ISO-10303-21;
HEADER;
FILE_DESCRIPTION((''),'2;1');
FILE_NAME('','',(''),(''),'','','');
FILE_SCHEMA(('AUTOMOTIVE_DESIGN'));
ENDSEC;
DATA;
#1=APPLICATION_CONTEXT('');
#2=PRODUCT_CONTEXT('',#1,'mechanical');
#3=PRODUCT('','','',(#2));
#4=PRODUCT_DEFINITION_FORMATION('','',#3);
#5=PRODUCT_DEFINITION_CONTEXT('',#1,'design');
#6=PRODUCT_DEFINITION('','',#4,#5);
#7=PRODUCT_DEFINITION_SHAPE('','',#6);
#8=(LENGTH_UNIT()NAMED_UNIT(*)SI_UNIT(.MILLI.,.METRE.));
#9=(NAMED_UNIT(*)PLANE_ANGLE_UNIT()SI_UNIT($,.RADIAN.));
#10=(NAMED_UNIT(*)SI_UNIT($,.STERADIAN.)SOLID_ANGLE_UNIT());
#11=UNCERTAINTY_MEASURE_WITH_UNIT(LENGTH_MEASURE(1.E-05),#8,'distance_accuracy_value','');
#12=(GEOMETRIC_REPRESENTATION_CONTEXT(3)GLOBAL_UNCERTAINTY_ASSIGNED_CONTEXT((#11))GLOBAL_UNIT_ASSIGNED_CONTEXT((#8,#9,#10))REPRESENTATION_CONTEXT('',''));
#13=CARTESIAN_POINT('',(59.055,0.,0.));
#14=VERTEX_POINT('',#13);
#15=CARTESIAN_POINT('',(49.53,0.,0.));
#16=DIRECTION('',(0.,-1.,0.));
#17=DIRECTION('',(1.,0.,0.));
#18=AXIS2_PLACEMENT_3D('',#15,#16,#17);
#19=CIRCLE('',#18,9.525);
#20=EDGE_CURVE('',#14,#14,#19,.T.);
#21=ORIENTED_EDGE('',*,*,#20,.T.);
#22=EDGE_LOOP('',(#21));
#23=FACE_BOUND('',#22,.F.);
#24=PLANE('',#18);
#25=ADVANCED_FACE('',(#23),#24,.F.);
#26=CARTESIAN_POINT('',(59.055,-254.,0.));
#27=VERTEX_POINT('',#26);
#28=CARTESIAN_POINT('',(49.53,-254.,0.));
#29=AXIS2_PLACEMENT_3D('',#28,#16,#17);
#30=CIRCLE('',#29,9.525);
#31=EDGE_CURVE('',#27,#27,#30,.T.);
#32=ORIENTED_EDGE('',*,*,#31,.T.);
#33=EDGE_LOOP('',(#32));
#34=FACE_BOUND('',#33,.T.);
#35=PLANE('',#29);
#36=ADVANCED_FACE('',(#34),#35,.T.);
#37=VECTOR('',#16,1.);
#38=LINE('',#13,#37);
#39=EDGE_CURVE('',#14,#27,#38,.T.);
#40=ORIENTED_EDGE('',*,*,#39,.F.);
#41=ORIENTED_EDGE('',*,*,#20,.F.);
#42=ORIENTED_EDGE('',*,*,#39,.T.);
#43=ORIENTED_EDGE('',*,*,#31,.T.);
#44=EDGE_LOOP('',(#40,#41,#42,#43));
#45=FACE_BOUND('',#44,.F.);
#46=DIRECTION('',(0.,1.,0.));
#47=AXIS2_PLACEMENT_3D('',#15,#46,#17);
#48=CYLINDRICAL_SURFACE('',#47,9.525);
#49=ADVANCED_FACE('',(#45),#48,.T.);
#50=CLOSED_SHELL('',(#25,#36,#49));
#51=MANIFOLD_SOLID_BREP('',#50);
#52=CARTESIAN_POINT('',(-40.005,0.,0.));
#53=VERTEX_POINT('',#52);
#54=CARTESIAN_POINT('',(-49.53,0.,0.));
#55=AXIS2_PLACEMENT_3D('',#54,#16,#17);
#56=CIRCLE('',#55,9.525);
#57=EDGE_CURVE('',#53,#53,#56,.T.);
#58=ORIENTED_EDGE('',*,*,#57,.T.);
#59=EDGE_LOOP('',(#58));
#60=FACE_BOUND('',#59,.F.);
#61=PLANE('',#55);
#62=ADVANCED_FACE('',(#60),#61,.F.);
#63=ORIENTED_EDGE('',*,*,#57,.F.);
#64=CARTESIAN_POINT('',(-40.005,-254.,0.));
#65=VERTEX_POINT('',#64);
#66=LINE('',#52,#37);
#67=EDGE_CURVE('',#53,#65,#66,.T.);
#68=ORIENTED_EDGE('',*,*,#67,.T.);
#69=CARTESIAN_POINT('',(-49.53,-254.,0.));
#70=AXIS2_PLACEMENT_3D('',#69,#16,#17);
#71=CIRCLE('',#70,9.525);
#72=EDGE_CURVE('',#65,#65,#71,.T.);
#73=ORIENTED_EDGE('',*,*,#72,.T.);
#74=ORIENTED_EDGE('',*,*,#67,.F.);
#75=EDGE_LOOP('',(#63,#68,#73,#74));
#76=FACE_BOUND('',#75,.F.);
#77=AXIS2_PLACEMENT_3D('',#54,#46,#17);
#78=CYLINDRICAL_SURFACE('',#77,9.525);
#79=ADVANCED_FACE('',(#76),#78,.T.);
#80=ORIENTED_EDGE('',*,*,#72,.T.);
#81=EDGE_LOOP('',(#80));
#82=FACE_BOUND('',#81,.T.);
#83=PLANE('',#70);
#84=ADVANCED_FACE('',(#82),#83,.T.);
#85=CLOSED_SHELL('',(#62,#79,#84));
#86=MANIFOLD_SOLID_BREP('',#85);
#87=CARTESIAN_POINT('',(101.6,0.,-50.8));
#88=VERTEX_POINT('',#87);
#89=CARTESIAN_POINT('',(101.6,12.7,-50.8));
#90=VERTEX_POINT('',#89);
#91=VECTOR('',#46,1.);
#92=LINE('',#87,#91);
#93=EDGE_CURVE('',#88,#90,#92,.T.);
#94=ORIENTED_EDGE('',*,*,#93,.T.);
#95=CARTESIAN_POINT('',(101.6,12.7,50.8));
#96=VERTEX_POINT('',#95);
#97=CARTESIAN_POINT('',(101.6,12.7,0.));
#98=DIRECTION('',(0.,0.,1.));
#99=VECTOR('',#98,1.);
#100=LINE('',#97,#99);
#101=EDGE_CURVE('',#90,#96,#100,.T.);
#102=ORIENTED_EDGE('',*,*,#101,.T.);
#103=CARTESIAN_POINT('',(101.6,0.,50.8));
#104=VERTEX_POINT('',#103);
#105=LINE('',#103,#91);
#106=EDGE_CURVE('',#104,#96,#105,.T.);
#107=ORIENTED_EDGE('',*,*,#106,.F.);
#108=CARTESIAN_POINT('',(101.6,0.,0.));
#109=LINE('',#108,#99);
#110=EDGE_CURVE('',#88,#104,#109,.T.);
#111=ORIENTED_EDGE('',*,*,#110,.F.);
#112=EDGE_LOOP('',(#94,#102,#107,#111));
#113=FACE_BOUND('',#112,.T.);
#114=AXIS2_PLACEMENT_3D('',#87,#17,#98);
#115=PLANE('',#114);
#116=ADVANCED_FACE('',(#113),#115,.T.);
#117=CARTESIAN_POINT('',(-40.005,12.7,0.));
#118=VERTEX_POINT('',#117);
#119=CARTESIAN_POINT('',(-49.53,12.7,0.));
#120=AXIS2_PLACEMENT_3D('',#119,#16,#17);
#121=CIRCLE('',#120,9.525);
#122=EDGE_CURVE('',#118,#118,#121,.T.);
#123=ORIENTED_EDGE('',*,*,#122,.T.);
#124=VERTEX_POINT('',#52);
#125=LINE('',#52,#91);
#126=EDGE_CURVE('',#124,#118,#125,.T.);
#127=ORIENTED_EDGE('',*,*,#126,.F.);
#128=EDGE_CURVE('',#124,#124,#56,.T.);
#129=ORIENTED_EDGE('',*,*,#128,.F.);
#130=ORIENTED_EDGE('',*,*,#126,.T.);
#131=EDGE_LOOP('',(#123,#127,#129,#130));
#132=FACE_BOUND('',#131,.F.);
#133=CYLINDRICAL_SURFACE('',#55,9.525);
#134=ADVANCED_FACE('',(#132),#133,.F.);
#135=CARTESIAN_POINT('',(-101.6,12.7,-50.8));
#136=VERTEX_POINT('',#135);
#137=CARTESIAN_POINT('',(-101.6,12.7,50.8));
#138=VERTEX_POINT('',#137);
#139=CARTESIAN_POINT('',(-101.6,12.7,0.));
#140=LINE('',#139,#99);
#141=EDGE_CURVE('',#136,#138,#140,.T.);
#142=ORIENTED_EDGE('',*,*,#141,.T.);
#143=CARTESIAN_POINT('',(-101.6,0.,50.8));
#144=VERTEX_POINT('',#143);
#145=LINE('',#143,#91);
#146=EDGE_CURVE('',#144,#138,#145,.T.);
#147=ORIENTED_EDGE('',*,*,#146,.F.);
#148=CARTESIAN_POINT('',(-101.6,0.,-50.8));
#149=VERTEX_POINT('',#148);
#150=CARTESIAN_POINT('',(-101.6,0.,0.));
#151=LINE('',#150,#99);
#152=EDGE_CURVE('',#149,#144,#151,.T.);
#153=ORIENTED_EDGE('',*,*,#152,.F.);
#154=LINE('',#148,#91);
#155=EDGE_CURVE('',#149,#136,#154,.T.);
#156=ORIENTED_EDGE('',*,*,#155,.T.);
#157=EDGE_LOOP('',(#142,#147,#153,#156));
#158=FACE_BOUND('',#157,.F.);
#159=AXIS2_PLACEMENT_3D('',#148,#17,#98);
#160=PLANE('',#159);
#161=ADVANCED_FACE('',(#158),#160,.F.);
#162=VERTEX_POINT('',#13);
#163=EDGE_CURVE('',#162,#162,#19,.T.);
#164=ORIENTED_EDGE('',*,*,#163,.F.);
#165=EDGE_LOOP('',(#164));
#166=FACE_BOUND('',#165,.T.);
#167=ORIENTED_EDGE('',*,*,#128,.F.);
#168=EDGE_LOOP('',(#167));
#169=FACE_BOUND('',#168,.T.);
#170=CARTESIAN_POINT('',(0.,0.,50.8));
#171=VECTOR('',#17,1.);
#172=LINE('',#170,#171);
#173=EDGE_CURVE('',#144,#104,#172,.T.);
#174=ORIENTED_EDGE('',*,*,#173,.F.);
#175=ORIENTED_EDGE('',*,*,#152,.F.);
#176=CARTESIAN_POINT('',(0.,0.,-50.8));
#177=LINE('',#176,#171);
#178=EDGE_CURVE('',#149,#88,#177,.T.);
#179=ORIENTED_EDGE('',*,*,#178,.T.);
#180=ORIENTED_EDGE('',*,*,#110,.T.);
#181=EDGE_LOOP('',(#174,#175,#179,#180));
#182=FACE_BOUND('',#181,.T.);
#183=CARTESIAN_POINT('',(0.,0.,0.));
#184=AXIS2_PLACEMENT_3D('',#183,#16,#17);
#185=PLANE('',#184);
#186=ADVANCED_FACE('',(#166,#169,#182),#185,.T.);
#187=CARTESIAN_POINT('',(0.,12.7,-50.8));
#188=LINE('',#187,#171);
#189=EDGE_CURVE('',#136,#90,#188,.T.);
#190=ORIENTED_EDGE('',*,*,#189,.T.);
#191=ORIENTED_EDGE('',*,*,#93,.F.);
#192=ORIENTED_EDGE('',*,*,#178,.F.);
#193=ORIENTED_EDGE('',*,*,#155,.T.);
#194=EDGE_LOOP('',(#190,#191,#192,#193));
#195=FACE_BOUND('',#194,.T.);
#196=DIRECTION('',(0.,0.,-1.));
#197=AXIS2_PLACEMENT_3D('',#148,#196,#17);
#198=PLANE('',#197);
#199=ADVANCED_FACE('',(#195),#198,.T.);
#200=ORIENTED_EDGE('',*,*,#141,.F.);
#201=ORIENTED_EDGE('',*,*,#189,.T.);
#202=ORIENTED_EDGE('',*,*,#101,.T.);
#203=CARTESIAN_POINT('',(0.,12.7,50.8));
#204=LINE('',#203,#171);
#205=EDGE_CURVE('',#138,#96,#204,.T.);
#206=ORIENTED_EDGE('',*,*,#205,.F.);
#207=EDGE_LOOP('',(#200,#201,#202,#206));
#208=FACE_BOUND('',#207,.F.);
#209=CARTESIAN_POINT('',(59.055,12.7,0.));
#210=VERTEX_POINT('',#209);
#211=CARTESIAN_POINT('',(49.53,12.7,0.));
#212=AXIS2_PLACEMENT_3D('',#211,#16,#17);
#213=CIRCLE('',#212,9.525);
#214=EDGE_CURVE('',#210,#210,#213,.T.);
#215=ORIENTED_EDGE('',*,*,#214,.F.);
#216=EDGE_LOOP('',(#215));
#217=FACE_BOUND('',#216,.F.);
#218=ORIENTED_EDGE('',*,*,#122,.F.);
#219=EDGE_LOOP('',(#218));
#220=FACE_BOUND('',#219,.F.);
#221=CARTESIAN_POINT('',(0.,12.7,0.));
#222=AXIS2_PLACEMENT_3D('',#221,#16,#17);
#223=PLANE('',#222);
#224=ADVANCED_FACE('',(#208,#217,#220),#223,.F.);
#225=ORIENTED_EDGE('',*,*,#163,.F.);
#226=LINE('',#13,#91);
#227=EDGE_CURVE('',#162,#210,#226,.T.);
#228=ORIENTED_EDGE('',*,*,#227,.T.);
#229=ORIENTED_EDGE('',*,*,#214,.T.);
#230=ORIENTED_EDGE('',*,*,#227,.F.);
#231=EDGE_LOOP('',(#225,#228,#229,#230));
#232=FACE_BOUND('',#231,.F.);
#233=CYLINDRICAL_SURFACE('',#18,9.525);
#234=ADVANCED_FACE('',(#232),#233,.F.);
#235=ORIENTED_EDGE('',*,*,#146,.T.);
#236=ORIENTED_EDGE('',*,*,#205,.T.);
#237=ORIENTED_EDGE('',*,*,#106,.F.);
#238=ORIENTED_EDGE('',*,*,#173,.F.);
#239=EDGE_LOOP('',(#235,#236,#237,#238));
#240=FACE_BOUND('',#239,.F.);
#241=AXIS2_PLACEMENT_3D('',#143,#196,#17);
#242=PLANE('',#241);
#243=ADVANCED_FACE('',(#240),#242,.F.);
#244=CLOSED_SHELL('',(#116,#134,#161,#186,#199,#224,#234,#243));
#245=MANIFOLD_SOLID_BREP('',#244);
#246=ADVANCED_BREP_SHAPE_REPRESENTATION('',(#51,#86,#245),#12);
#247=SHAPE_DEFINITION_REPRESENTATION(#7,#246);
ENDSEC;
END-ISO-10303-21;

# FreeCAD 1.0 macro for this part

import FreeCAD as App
import Part
import Sketcher

V = App.Vector
Q = App.Units.Quantity


def add_polygon(sketch, points):
    """Adds a closed chain of lines whose ends are joined by coincident constraints."""
    first, n = sketch.GeometryCount, len(points)
    for a, b in zip(points, points[1:] + points[:1]):
        sketch.addGeometry(Part.LineSegment(App.Vector(*a, 0), App.Vector(*b, 0)), False)
    for i in range(n):
        sketch.addConstraint(Sketcher.Constraint("Coincident", first + i, 2, first + (i + 1) % n, 1))

doc = App.newDocument("Part")
body = doc.addObject("PartDesign::Body", "Body")
body.AllowCompound = True

# Sketch on XZ plane
sketch1 = body.newObject("Sketcher::SketchObject", "Sketch")
sketch1.AttachmentSupport = (doc.getObject("XZ_Plane"), [""])
sketch1.MapMode = "FlatFace"
sketch1.addGeometry([
    Part.Circle(V(-50, 0, 0), V(0, 0, 1), 10),
    Part.Circle(V(50, 0, 0), V(0, 0, 1), 10),
], False)
sketch1.addConstraint([
    Sketcher.Constraint("Equal", 0, 1),
    Sketcher.Constraint("Symmetric", 0, 3, 1, 3, -1, 1),
    Sketcher.Constraint("PointOnObject", 0, 3, -1),
    Sketcher.Constraint("Diameter", 0, Q("0.75 in")),
    Sketcher.Constraint("DistanceX", 0, 3, 1, 3, Q("3.9 in")),
])
pad1 = body.newObject("PartDesign::Pad", "Pad")
pad1.Profile = sketch1
pad1.Length = Q("10 in")
body2 = doc.addObject("PartDesign::Body", "Body001")

# Sketch on XZ plane
sketch2 = body2.newObject("Sketcher::SketchObject", "Sketch001")
sketch2.AttachmentSupport = (doc.getObject("XZ_Plane001"), [""])
sketch2.MapMode = "FlatFace"
add_polygon(sketch2, [(-102, 51), (-102, -51), (102, -51), (102, 51)])  # lines 0-3
sketch2.addGeometry(Part.Circle(V(-50, 0, 0), V(0, 0, 1), 10), False)  # 4
sketch2.addGeometry(Part.Circle(V(50, 0, 0), V(0, 0, 1), 10), False)  # 5
sketch2.addConstraint([
    Sketcher.Constraint("Vertical", 0),
    Sketcher.Constraint("Horizontal", 1),
    Sketcher.Constraint("Vertical", 2),
    Sketcher.Constraint("Horizontal", 3),
    Sketcher.Constraint("Equal", 4, 5),
    Sketcher.Constraint("Symmetric", 4, 3, 5, 3, -1, 1),
    Sketcher.Constraint("Symmetric", 0, 2, 2, 2, -1, 1),
    Sketcher.Constraint("PointOnObject", 4, 3, -1),
    Sketcher.Constraint("Diameter", 4, Q("0.75 in")),
    Sketcher.Constraint("DistanceX", 1, 1, 1, 2, Q("8 in")),
    Sketcher.Constraint("DistanceY", 0, 2, 0, 1, Q("4 in")),
    Sketcher.Constraint("DistanceX", 4, 3, 5, 3, Q("3.9 in")),
])
pad2 = body2.newObject("PartDesign::Pad", "Pad001")
pad2.Profile = sketch2
pad2.Length = Q("0.5 in")
pad2.Reversed = True

doc.recompute()
